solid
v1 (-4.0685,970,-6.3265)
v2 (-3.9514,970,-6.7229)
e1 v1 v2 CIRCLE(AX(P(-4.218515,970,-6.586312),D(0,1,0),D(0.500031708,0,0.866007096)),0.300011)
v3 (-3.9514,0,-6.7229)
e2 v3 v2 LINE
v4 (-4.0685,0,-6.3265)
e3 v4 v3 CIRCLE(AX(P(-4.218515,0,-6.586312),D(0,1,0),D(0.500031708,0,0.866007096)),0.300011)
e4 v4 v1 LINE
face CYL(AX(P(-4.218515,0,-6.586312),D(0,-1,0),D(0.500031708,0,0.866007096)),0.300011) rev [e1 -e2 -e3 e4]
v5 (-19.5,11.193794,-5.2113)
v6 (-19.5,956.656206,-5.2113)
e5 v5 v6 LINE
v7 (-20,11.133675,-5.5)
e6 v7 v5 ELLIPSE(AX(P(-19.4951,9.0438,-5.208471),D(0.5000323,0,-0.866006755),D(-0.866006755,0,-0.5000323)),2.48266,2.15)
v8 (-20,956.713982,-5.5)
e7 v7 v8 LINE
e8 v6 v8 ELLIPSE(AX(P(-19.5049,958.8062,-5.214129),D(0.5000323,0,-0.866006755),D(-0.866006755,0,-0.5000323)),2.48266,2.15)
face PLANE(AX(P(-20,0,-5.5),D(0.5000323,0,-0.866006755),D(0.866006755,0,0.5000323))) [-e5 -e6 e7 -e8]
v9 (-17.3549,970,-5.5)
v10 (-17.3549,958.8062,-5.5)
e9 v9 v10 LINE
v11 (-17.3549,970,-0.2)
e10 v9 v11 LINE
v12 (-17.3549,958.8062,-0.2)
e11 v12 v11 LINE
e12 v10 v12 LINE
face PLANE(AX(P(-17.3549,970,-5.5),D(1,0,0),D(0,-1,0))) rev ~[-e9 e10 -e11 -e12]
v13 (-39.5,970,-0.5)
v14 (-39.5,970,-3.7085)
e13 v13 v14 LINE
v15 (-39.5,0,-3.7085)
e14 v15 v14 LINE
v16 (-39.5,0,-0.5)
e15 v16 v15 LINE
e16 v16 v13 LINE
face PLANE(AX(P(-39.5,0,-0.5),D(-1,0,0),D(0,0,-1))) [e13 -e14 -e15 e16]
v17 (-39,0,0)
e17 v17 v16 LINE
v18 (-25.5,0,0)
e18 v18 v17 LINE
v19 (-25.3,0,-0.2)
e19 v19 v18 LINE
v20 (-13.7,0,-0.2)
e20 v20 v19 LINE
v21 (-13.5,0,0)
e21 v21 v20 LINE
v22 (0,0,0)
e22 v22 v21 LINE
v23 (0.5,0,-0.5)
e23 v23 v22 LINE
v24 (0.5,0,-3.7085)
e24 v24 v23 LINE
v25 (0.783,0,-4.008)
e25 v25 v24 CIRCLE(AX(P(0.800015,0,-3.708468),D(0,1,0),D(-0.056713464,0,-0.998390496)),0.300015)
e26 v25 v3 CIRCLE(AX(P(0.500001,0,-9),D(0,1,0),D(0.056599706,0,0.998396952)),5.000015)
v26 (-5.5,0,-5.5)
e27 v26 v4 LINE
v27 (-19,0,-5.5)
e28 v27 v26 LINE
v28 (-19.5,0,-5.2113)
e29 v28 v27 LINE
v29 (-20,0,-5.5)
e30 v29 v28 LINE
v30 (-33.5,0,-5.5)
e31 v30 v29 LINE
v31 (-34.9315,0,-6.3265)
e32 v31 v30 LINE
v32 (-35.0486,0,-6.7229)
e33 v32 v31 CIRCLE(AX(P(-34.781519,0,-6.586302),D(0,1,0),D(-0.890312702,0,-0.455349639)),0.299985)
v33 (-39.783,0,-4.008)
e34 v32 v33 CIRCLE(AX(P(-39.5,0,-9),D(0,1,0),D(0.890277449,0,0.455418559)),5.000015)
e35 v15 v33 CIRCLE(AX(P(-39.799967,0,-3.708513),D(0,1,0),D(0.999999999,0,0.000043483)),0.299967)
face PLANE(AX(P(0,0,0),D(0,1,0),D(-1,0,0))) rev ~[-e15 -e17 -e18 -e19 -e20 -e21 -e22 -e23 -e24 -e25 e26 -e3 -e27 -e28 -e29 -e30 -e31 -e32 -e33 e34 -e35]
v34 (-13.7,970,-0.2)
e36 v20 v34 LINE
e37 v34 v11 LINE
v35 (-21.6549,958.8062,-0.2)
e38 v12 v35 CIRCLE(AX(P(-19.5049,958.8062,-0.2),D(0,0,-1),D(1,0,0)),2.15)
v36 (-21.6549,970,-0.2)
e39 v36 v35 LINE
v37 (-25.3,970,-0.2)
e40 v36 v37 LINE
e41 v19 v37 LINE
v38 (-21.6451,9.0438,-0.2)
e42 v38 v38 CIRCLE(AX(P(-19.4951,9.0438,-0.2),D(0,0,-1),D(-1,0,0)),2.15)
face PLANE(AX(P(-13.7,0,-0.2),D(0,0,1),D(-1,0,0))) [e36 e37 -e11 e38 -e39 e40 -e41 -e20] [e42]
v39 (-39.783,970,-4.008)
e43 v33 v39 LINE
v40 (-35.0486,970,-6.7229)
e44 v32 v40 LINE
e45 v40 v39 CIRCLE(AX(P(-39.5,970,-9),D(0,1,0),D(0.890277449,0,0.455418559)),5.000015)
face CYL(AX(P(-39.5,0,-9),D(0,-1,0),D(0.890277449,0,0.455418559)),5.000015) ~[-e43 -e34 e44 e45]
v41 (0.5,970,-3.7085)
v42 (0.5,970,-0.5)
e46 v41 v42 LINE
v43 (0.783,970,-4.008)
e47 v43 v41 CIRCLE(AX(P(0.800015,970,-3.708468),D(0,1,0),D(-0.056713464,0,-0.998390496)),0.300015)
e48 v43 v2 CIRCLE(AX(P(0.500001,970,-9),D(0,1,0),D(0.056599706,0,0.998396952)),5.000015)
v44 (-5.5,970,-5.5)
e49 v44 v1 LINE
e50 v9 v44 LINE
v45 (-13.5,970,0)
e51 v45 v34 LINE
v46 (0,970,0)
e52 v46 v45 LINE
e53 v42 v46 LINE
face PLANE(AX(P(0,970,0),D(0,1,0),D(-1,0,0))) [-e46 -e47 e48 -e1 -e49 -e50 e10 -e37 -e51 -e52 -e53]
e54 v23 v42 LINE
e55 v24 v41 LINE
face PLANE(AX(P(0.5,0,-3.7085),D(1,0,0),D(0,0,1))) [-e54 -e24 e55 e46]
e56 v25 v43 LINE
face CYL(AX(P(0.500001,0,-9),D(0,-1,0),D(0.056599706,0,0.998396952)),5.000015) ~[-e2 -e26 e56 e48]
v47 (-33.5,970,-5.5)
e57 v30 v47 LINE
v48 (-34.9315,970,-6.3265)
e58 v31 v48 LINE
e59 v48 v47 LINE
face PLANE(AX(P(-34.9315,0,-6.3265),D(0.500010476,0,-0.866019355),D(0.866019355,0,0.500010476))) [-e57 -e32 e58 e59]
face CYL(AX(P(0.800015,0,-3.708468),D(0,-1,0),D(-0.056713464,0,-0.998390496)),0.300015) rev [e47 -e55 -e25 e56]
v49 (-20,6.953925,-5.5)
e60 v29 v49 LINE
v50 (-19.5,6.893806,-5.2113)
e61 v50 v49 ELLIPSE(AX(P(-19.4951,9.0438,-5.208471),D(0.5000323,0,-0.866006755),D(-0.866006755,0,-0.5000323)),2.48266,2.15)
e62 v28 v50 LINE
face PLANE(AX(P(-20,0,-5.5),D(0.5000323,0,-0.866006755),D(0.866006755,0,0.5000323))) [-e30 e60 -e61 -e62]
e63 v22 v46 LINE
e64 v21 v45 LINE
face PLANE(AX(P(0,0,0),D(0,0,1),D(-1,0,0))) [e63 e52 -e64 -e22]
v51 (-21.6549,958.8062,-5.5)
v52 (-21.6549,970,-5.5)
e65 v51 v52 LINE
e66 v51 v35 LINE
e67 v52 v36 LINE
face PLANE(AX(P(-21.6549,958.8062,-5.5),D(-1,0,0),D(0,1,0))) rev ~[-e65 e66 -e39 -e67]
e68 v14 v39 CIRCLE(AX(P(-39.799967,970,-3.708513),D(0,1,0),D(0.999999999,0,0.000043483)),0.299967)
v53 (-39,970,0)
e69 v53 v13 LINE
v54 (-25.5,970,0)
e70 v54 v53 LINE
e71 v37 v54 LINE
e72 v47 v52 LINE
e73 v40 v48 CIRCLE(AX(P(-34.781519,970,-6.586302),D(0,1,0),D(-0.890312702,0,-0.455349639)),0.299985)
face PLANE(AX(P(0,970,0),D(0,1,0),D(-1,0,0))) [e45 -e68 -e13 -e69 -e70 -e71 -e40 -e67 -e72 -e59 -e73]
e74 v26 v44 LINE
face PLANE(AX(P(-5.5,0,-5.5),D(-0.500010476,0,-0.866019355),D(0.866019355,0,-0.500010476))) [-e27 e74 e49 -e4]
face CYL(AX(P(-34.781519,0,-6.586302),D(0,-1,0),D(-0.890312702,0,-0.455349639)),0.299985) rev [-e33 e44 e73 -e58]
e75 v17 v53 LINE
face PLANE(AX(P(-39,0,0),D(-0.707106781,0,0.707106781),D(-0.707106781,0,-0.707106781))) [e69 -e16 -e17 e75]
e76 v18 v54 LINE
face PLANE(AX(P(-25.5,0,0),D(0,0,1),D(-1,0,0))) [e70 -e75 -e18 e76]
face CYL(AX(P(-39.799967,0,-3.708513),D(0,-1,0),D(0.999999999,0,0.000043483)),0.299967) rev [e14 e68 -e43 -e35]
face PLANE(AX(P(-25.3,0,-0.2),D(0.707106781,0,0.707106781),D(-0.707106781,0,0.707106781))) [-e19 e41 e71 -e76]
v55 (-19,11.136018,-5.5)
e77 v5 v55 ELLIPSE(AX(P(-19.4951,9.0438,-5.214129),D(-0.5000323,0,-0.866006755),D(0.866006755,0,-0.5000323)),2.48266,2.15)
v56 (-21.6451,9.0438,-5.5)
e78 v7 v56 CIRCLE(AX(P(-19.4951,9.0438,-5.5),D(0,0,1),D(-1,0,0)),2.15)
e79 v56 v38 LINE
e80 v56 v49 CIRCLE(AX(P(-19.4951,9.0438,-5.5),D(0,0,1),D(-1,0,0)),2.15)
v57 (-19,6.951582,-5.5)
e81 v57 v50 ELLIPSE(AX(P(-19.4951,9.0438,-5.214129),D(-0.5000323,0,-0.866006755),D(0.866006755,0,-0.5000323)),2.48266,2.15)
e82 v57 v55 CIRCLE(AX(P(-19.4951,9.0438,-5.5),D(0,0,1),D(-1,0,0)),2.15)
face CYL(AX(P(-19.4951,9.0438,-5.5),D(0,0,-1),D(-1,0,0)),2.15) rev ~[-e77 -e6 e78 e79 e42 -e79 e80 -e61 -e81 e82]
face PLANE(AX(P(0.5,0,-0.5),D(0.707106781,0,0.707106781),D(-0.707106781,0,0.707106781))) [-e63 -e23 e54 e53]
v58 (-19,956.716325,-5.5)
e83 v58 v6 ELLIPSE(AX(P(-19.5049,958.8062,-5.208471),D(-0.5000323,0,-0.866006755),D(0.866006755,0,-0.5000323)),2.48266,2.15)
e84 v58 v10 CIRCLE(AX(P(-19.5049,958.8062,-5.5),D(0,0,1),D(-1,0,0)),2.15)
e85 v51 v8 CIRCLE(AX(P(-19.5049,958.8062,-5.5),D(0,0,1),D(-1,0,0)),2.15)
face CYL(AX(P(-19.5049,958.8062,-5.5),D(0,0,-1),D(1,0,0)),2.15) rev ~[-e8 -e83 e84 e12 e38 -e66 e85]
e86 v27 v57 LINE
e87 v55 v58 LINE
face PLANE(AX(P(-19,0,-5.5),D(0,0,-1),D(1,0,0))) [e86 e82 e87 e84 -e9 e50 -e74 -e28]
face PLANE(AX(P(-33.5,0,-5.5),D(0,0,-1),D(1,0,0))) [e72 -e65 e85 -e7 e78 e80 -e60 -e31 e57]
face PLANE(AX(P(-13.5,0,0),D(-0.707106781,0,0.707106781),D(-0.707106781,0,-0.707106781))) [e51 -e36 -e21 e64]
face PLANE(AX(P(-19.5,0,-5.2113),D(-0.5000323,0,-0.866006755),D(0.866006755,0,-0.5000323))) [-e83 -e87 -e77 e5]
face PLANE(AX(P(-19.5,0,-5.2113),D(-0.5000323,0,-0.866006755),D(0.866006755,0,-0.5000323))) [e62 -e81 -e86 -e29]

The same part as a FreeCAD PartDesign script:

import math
import FreeCAD as App
import Part
import Sketcher
Q = App.Units.Quantity

doc = App.newDocument("Part")
params = doc.addObject("Spreadsheet::Sheet", "Params")
for row, (alias, value) in enumerate([
    ("sketch1_radius", "5 mm"),
    ("sketch1_radius2", "0.3 mm"),
    ("sketch1_width", "11.6 mm"),
    ("sketch1_width2", "13.5 mm"),
    ("pad1_length", "970 mm"),
    ("sketch2_diameter", "4.3 mm"),
], start=1):
    params.set(f"A{row}", alias)
    params.set(f"B{row}", "=" + value)
    params.setAlias(f"B{row}", alias)

body = doc.addObject("PartDesign::Body", "Body")

sketch1 = doc.addObject("Sketcher::SketchObject", "Sketch")
body.addObject(sketch1)
sketch1.AttachmentSupport = (doc.XZ_Plane, [""])
sketch1.MapMode = "FlatFace"
sketch1.addGeometry([
    Part.LineSegment(App.Vector(-25.3, -0.2, 0), App.Vector(-13.7, -0.2, 0)),
    Part.LineSegment(App.Vector(-13.7, -0.2, 0), App.Vector(-13.5, 0, 0)),
    Part.LineSegment(App.Vector(-13.5, 0, 0), App.Vector(0, 0, 0)),
    Part.LineSegment(App.Vector(0, 0, 0), App.Vector(0.5, -0.5, 0)),
    Part.LineSegment(App.Vector(0.5, -0.5, 0), App.Vector(0.5, -3.71, 0)),
    Part.ArcOfCircle(Part.Circle(App.Vector(0.8, -3.71, 0), App.Vector(0, 0, 1), 0.3), math.radians(180), math.radians(267)),
    Part.ArcOfCircle(Part.Circle(App.Vector(0.5, -9, 0), App.Vector(0, 0, 1), 5), math.radians(153), math.radians(447)),
    Part.ArcOfCircle(Part.Circle(App.Vector(-4.22, -6.59, 0), App.Vector(0, 0, 1), 0.3), math.radians(-27), math.radians(60)),
    Part.LineSegment(App.Vector(-4.07, -6.33, 0), App.Vector(-5.5, -5.5, 0)),
    Part.LineSegment(App.Vector(-5.5, -5.5, 0), App.Vector(-19, -5.5, 0)),
    Part.LineSegment(App.Vector(-19, -5.5, 0), App.Vector(-19.5, -5.21, 0)),
    Part.LineSegment(App.Vector(-19.5, -5.21, 0), App.Vector(-20, -5.5, 0)),
    Part.LineSegment(App.Vector(-20, -5.5, 0), App.Vector(-33.5, -5.5, 0)),
    Part.LineSegment(App.Vector(-33.5, -5.5, 0), App.Vector(-34.93, -6.33, 0)),
    Part.ArcOfCircle(Part.Circle(App.Vector(-34.78, -6.59, 0), App.Vector(0, 0, 1), 0.3), math.radians(120), math.radians(207)),
    Part.ArcOfCircle(Part.Circle(App.Vector(-39.5, -9, 0), App.Vector(0, 0, 1), 5), math.radians(93), math.radians(387)),
    Part.ArcOfCircle(Part.Circle(App.Vector(-39.8, -3.71, 0), App.Vector(0, 0, 1), 0.3), math.radians(-87), math.radians(0)),
    Part.LineSegment(App.Vector(-39.5, -3.71, 0), App.Vector(-39.5, -0.5, 0)),
    Part.LineSegment(App.Vector(-39.5, -0.5, 0), App.Vector(-39, 0, 0)),
    Part.LineSegment(App.Vector(-39, 0, 0), App.Vector(-25.5, 0, 0)),
    Part.LineSegment(App.Vector(-25.5, 0, 0), App.Vector(-25.3, -0.2, 0)),
], False)
sketch1.addConstraint([
    Sketcher.Constraint("Coincident", 0, 2, 1, 1),
    Sketcher.Constraint("Coincident", 1, 2, 2, 1),
    Sketcher.Constraint("Coincident", 2, 2, 3, 1),
    Sketcher.Constraint("Coincident", 3, 2, 4, 1),
    Sketcher.Constraint("Tangent", 4, 2, 5, 1),
    Sketcher.Constraint("Tangent", 5, 2, 6, 2),
    Sketcher.Constraint("Tangent", 6, 1, 7, 1),
    Sketcher.Constraint("Tangent", 7, 2, 8, 1),
    Sketcher.Constraint("Coincident", 8, 2, 9, 1),
    Sketcher.Constraint("Coincident", 9, 2, 10, 1),
    Sketcher.Constraint("Coincident", 10, 2, 11, 1),
    Sketcher.Constraint("Coincident", 11, 2, 12, 1),
    Sketcher.Constraint("Coincident", 12, 2, 13, 1),
    Sketcher.Constraint("Tangent", 13, 2, 14, 1),
    Sketcher.Constraint("Tangent", 14, 2, 15, 2),
    Sketcher.Constraint("Tangent", 15, 1, 16, 1),
    Sketcher.Constraint("Tangent", 16, 2, 17, 1),
    Sketcher.Constraint("Coincident", 17, 2, 18, 1),
    Sketcher.Constraint("Coincident", 18, 2, 19, 1),
    Sketcher.Constraint("Coincident", 19, 2, 20, 1),
    Sketcher.Constraint("Coincident", 20, 2, 0, 1),
    Sketcher.Constraint("Horizontal", 0),
    Sketcher.Constraint("Horizontal", 2),
    Sketcher.Constraint("Vertical", 4),
    Sketcher.Constraint("Horizontal", 9),
    Sketcher.Constraint("Horizontal", 12),
    Sketcher.Constraint("Vertical", 17),
    Sketcher.Constraint("Horizontal", 19),
    Sketcher.Constraint("Coincident", 2, 2, -1, 1),
    Sketcher.Constraint("Equal", 5, 7),
    Sketcher.Constraint("Equal", 7, 14),
    Sketcher.Constraint("Equal", 6, 15),
    Sketcher.Constraint("Equal", 14, 16),
    Sketcher.Constraint("PointOnObject", 18, 2, -1),
    Sketcher.Constraint("Perpendicular", 1, 3),
    Sketcher.Constraint("Parallel", 8, 10),
    Sketcher.Constraint("Parallel", 11, 13),
    Sketcher.Constraint("Perpendicular", 3, 18),
    Sketcher.Constraint("Perpendicular", 18, 20),
    Sketcher.Constraint("Horizontal", 7, 3, 14, 3),
    Sketcher.Constraint("Horizontal", 6, 3, 15, 3),
    Sketcher.Constraint("Horizontal", 5, 3, 16, 3),
    Sketcher.Constraint("Horizontal", 9, 2, 11, 2),
    Sketcher.Constraint("Horizontal", 7, 2, 13, 2),
    Sketcher.Constraint("Horizontal", 3, 2, 17, 2),
    Sketcher.Constraint("Vertical", 6, 3, 3, 2),
    Sketcher.Constraint("Equal", 2, 9),
    Sketcher.Constraint("Equal", 9, 12),
    Sketcher.Constraint("Equal", 12, 19),
    Sketcher.Constraint("Equal", 3, 18),
    Sketcher.Constraint("Radius", 6, Q("5 mm")),
    Sketcher.Constraint("Radius", 5, Q("0.3 mm")),
    Sketcher.Constraint("Angle", 8, Q("149.9993 deg")),
    Sketcher.Constraint("DistanceX", 0, 1, 0, 2, Q("11.6 mm")),
    Sketcher.Constraint("DistanceX", 2, 1, 2, 2, Q("13.5 mm")),
    Sketcher.Constraint("DistanceY", 6, 3, -1, 1, Q("9 mm")),
    Sketcher.Constraint("DistanceX", 9, 2, -1, 1, Q("19 mm")),
    Sketcher.Constraint("DistanceX", 11, 2, -1, 1, Q("20 mm")),
    Sketcher.Constraint("DistanceX", 15, 3, 6, 3, Q("40 mm")),
    Sketcher.Constraint("DistanceY", 8, 2, -1, 1, Q("5.5 mm")),
])
sketch1.setExpression("Constraints[50]", "Params.sketch1_radius")
sketch1.setExpression("Constraints[51]", "Params.sketch1_radius2")
sketch1.setExpression("Constraints[53]", "Params.sketch1_width")
sketch1.setExpression("Constraints[54]", "Params.sketch1_width2")
pad1 = doc.addObject("PartDesign::Pad", "Pad")
body.addObject(pad1)
pad1.Profile = sketch1
pad1.setExpression("Length", "Params.pad1_length")
pad1.Reversed = True

sketch2 = doc.addObject("Sketcher::SketchObject", "Sketch001")
body.addObject(sketch2)
sketch2.AttachmentSupport = (doc.XY_Plane, [""])
sketch2.MapMode = "FlatFace"
sketch2.AttachmentOffset = App.Placement(App.Vector(0, 0, -5.5), App.Rotation())
sketch2.addGeometry([
    Part.Circle(App.Vector(-19.5, 9, 0), App.Vector(0, 0, 1), 2.1),
    Part.ArcOfCircle(Part.Circle(App.Vector(-19.5, 958.8, 0), App.Vector(0, 0, 1), 2.1), math.radians(180), math.radians(360)),
    Part.LineSegment(App.Vector(-21.7, 958.8, 0), App.Vector(-21.7, 970, 0)),
    Part.LineSegment(App.Vector(-21.7, 970, 0), App.Vector(-17.4, 970, 0)),
    Part.LineSegment(App.Vector(-17.4, 970, 0), App.Vector(-17.4, 958.8, 0)),
], False)
sketch2.addConstraint([
    Sketcher.Constraint("Tangent", 1, 1, 2, 1),
    Sketcher.Constraint("Coincident", 2, 2, 3, 1),
    Sketcher.Constraint("Coincident", 3, 2, 4, 1),
    Sketcher.Constraint("Tangent", 4, 2, 1, 2),
    Sketcher.Constraint("Vertical", 2),
    Sketcher.Constraint("Horizontal", 3),
    Sketcher.Constraint("Vertical", 4),
    Sketcher.Constraint("Equal", 0, 1),
    Sketcher.Constraint("Diameter", 0, Q("4.3 mm")),
    Sketcher.Constraint("DistanceY", -1, 1, 2, 2, Q("970 mm")),
    Sketcher.Constraint("DistanceY", 2, 1, 2, 2, Q("11.1938 mm")),
    Sketcher.Constraint("DistanceX", 0, 3, -1, 1, Q("19.495 mm")),
    Sketcher.Constraint("DistanceX", 1, 3, -1, 1, Q("19.505 mm")),
    Sketcher.Constraint("DistanceY", -1, 1, 0, 3, Q("9.0438 mm")),
])
sketch2.setExpression("Constraints[8]", "Params.sketch2_diameter")
pocket1 = doc.addObject("PartDesign::Pocket", "Pocket")
body.addObject(pocket1)
pocket1.Profile = sketch2
pocket1.Type = "ThroughAll"
pocket1.Reversed = True

doc.recompute()
